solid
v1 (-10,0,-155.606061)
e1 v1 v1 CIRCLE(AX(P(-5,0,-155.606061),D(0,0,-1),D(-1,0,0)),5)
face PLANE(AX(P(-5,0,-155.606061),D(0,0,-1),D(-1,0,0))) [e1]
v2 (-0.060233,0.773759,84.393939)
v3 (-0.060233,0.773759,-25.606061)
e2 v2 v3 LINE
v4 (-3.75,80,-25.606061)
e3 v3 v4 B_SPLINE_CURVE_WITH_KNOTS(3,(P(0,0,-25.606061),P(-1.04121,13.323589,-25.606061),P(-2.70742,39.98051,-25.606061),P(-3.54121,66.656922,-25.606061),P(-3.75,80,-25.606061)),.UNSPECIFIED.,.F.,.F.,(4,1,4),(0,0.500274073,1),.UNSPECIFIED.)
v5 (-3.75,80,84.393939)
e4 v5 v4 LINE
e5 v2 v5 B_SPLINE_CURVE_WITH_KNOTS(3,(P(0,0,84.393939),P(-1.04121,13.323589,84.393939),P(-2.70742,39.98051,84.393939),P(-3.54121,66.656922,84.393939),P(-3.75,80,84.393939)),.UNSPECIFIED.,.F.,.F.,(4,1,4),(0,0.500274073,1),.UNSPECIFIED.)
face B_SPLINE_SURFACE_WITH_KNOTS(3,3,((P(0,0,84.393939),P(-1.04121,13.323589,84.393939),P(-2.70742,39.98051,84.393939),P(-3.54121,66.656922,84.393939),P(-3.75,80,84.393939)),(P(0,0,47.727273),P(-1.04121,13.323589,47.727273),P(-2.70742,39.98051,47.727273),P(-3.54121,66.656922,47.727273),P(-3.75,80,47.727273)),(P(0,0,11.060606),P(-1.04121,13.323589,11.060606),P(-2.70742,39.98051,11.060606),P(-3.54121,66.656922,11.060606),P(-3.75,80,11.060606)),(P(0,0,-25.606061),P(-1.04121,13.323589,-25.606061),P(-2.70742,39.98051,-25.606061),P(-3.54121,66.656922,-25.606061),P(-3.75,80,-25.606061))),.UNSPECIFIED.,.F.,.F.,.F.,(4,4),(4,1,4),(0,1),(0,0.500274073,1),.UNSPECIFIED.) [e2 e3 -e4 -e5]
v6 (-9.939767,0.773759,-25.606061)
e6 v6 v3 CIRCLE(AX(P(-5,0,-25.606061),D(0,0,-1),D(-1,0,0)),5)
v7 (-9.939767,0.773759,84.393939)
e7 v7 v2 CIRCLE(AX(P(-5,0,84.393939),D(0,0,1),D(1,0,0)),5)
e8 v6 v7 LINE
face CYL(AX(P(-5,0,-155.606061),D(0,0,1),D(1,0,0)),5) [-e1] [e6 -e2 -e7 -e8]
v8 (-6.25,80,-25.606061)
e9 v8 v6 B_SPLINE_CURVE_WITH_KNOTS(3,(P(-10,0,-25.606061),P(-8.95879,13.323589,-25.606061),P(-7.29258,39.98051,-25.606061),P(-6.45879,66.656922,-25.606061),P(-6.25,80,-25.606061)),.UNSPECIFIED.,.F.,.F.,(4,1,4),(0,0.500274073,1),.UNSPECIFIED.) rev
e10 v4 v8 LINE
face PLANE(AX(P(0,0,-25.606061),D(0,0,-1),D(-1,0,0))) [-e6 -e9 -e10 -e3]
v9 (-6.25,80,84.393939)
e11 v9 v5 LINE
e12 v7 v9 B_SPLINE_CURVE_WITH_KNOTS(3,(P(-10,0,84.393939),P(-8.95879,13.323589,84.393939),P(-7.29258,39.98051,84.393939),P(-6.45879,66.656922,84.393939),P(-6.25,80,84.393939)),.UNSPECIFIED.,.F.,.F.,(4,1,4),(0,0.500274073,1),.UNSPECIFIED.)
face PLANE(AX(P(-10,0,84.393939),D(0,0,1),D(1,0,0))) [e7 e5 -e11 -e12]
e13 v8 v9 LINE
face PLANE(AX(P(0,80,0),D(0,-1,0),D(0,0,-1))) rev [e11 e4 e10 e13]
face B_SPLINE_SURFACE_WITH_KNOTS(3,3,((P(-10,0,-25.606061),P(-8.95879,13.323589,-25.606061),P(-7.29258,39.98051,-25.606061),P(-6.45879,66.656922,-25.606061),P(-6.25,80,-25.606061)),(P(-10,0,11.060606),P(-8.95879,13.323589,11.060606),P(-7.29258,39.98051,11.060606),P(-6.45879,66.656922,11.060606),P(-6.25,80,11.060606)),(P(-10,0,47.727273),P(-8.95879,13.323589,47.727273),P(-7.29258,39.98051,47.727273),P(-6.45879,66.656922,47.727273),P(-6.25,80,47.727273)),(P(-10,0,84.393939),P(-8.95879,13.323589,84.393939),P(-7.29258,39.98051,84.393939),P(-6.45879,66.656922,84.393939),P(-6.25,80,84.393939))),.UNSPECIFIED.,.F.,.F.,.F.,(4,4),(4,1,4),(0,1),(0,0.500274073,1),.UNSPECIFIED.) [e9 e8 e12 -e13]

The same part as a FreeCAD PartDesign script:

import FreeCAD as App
import Part
import Sketcher
from FreeCAD import Vector


def add_polygon(sketch, points):
    """Adds a closed chain of lines whose ends are joined by coincident constraints."""
    first, n = sketch.GeometryCount, len(points)
    for a, b in zip(points, points[1:] + points[:1]):
        sketch.addGeometry(Part.LineSegment(App.Vector(*a, 0), App.Vector(*b, 0)), False)
    for i in range(n):
        sketch.addConstraint(Sketcher.Constraint("Coincident", first + i, 2, first + (i + 1) % n, 1))

doc = App.newDocument("Part")
body = doc.addObject("PartDesign::Body", "Body")

# Sketch on XZ plane
sketch1 = body.newObject("Sketcher::SketchObject", "Sketch")
sketch1.AttachmentSupport = (doc.getObject("XZ_Plane"), [""])
sketch1.MapMode = "FlatFace"
add_polygon(sketch1, [(0, -26), (-10, -26), (-10, 84), (0, 84)])  # lines 0-3
sketch1.addConstraint(Sketcher.Constraint("Horizontal", 0))
sketch1.addConstraint(Sketcher.Constraint("Vertical", 1))
sketch1.addConstraint(Sketcher.Constraint("Horizontal", 2))
sketch1.addConstraint(Sketcher.Constraint("Vertical", 3))
sketch1.addConstraint(Sketcher.Constraint("PointOnObject", 2, 2, -2))
sketch1.addConstraint(Sketcher.Constraint("DistanceX", 0, 2, 0, 1, 10.0))
sketch1.addConstraint(Sketcher.Constraint("DistanceY", 1, 1, 1, 2, 110.0))
sketch1.addConstraint(Sketcher.Constraint("DistanceY", 0, 2, -1, 1, 25.606061))

# Sketch on XZ plane
sketch2 = body.newObject("Sketcher::SketchObject", "Sketch001")
sketch2.AttachmentSupport = (doc.getObject("XZ_Plane"), [""])
sketch2.MapMode = "FlatFace"
sketch2.AttachmentOffset = App.Placement(Vector(0, 0, -40), App.Rotation())
add_polygon(sketch2, [(-2, 84), (-2, -26), (-8, -26), (-8, 84)])  # lines 0-3
sketch2.addConstraint(Sketcher.Constraint("Vertical", 0))
sketch2.addConstraint(Sketcher.Constraint("Horizontal", 1))
sketch2.addConstraint(Sketcher.Constraint("Vertical", 2))
sketch2.addConstraint(Sketcher.Constraint("Horizontal", 3))
sketch2.addConstraint(Sketcher.Constraint("DistanceX", 1, 2, 1, 1, 5.0))
sketch2.addConstraint(Sketcher.Constraint("DistanceY", 0, 2, 0, 1, 110.0))
sketch2.addConstraint(Sketcher.Constraint("DistanceX", 0, 2, -1, 1, 2.5))
sketch2.addConstraint(Sketcher.Constraint("DistanceY", 0, 2, -1, 1, 25.606061))

# Sketch on XZ plane
sketch3 = body.newObject("Sketcher::SketchObject", "Sketch002")
sketch3.AttachmentSupport = (doc.getObject("XZ_Plane"), [""])
sketch3.MapMode = "FlatFace"
sketch3.AttachmentOffset = App.Placement(Vector(0, 0, -80), App.Rotation())
add_polygon(sketch3, [(-3.8, -25.6), (-6.2, -25.6), (-6.2, 84.4), (-3.8, 84.4)])  # lines 0-3
sketch3.addConstraint(Sketcher.Constraint("Horizontal", 0))
sketch3.addConstraint(Sketcher.Constraint("Vertical", 1))
sketch3.addConstraint(Sketcher.Constraint("Horizontal", 2))
sketch3.addConstraint(Sketcher.Constraint("Vertical", 3))
sketch3.addConstraint(Sketcher.Constraint("DistanceY", 1, 1, 1, 2, 110.0))
sketch3.addConstraint(Sketcher.Constraint("DistanceX", 0, 2, 0, 1, 2.5))
sketch3.addConstraint(Sketcher.Constraint("DistanceX", 0, 2, -1, 1, 6.25))
sketch3.addConstraint(Sketcher.Constraint("DistanceY", 0, 2, -1, 1, 25.606061))

additiveloft = body.newObject("PartDesign::AdditiveLoft", "AdditiveLoft")
additiveloft.Profile = sketch1
additiveloft.Sections = [sketch2, sketch3]

# Sketch on XY plane
sketch4 = body.newObject("Sketcher::SketchObject", "Sketch003")
sketch4.AttachmentSupport = (doc.getObject("XY_Plane"), [""])
sketch4.MapMode = "FlatFace"
sketch4.AttachmentOffset = App.Placement(Vector(0, 0, -25.606061), App.Rotation())
sketch4.addGeometry(Part.Circle(Vector(-5, 0, 0), Vector(0, 0, 1), 5), False)
sketch4.addConstraint(Sketcher.Constraint("PointOnObject", 0, 3, -1))
sketch4.addConstraint(Sketcher.Constraint("Diameter", 0, 10.0))
sketch4.addConstraint(Sketcher.Constraint("DistanceX", 0, 3, -1, 1, 5.0))
pad1 = body.newObject("PartDesign::Pad", "Pad")
pad1.Profile = sketch4
pad1.Length = 130
pad1.Reversed = True

# Sketch on XY plane
sketch5 = body.newObject("Sketcher::SketchObject", "Sketch004")
sketch5.AttachmentSupport = (doc.getObject("XY_Plane"), [""])
sketch5.MapMode = "FlatFace"
sketch5.AttachmentOffset = App.Placement(Vector(0, 0, 84.393939), App.Rotation())
sketch5.addGeometry(Part.Circle(Vector(-5, 0, 0), Vector(0, 0, 1), 5), False)
sketch5.addConstraint(Sketcher.Constraint("PointOnObject", 0, 3, -1))
sketch5.addConstraint(Sketcher.Constraint("Diameter", 0, 10.0))
sketch5.addConstraint(Sketcher.Constraint("DistanceX", 0, 3, -1, 1, 5.0))
pad2 = body.newObject("PartDesign::Pad", "Pad001")
pad2.Profile = sketch5
pad2.Length = 110
pad2.Reversed = True

doc.recompute()
